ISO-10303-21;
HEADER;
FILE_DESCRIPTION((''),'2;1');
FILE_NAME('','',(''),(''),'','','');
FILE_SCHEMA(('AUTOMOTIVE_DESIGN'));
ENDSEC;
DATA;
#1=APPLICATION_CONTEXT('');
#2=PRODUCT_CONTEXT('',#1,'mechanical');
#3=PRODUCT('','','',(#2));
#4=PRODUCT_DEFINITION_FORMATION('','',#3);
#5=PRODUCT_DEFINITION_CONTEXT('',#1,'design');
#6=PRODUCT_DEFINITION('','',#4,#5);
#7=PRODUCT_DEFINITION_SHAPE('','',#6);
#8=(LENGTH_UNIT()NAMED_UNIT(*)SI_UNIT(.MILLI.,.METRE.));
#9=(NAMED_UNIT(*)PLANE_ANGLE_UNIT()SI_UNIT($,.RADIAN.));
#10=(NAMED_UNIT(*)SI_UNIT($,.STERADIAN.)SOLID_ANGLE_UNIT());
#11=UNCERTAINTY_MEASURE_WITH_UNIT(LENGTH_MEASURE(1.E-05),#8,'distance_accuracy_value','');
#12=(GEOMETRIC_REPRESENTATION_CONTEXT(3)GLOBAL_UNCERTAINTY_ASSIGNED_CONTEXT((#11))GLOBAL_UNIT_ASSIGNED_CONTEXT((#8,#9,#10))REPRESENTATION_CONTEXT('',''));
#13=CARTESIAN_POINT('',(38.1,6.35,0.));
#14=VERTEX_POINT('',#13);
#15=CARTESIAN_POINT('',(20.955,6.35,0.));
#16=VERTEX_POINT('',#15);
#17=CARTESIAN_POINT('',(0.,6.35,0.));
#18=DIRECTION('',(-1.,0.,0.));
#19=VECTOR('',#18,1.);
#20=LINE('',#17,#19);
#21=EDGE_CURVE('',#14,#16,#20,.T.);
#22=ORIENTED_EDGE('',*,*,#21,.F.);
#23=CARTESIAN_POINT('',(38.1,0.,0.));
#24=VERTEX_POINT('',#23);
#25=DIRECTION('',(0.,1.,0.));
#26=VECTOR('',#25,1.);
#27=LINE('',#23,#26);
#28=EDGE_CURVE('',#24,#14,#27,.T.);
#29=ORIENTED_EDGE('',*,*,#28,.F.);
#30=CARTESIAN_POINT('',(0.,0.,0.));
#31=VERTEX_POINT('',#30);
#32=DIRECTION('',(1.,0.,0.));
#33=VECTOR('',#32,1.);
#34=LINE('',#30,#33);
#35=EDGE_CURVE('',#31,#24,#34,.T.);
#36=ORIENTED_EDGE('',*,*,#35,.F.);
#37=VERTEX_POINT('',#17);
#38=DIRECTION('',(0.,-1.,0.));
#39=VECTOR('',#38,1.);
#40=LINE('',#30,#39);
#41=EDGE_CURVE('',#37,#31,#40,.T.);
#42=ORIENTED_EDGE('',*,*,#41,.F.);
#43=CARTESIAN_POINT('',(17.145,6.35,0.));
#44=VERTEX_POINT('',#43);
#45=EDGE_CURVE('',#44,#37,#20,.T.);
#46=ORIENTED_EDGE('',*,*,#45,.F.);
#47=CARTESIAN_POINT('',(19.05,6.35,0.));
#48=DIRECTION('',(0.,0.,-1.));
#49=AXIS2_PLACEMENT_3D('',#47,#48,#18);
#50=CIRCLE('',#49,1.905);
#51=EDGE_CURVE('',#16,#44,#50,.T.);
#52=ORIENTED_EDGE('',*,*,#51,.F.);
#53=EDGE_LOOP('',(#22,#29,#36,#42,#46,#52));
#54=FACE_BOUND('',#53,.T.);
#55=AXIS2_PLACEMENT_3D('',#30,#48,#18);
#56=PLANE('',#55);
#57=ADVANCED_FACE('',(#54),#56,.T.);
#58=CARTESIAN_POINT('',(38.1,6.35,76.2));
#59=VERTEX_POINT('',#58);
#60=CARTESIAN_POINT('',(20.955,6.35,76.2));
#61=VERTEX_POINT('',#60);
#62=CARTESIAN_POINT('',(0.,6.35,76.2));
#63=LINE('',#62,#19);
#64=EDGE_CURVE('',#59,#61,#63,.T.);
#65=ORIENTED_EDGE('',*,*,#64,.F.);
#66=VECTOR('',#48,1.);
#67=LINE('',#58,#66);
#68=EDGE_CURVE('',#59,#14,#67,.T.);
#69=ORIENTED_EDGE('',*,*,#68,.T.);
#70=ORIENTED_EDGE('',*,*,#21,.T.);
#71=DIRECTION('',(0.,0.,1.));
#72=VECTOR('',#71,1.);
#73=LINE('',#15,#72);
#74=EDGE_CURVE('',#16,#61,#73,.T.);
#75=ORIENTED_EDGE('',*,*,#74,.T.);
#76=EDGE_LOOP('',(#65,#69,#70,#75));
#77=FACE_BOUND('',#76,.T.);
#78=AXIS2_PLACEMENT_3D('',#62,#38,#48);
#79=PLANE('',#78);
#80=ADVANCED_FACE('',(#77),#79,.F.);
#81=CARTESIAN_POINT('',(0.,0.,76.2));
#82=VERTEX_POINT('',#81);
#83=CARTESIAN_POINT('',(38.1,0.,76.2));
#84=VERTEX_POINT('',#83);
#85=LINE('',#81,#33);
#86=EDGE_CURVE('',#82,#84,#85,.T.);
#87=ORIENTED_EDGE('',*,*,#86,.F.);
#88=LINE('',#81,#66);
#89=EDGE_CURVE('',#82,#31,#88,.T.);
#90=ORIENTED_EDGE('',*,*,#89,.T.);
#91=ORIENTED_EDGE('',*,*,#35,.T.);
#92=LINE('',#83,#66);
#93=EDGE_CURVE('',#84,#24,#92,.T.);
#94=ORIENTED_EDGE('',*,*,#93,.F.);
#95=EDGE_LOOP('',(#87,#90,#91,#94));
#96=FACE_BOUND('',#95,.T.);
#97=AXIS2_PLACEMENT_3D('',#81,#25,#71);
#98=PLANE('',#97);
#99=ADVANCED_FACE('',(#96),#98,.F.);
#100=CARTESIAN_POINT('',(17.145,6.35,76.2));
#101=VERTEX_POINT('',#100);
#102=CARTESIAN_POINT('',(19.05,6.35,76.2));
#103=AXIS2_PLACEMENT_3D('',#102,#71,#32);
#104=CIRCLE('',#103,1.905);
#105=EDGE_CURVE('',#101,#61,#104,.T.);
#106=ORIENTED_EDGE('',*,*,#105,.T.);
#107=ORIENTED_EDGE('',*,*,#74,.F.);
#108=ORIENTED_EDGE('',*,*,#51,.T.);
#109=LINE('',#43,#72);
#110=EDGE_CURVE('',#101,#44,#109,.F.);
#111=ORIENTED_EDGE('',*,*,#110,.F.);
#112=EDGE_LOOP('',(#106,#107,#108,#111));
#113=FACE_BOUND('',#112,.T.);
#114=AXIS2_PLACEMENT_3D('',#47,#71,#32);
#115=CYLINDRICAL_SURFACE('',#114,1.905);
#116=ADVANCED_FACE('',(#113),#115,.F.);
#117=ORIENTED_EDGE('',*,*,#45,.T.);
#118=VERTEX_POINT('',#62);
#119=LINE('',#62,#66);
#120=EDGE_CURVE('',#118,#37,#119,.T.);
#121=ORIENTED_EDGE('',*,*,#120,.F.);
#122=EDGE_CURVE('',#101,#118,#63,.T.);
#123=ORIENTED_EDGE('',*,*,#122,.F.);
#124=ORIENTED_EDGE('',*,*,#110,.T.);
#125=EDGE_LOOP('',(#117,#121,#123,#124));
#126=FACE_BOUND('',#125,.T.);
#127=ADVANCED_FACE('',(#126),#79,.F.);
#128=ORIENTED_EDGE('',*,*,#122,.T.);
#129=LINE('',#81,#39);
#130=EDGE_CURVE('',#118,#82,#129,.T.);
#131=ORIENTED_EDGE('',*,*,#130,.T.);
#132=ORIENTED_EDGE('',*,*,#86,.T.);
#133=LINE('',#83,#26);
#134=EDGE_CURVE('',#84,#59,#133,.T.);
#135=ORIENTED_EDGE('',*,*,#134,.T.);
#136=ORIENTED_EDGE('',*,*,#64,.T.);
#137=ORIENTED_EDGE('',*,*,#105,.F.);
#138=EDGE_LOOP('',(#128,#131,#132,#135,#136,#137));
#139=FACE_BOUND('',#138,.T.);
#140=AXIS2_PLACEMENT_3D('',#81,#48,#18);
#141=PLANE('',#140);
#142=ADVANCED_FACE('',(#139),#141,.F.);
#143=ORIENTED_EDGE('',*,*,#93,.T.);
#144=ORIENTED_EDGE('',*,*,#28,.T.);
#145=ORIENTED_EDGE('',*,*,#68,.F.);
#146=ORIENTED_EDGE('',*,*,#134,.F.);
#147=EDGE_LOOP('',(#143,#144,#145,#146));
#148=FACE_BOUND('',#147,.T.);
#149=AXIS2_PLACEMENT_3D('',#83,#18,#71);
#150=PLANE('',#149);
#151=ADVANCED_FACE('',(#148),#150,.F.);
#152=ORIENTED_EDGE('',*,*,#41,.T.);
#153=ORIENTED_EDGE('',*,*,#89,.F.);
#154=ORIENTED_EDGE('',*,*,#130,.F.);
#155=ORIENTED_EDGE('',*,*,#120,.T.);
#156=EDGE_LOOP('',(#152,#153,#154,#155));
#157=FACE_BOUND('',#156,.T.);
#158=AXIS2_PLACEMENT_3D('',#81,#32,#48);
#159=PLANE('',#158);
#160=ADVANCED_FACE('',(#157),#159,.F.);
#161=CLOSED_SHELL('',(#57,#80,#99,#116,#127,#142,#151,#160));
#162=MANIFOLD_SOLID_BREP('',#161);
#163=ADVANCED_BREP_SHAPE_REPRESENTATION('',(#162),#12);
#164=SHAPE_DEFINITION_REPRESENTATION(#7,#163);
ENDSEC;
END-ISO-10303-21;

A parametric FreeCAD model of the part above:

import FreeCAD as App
import Part
import Sketcher

V = App.Vector
Q = App.Units.Quantity


def add_polygon(sketch, points):
    """Adds a closed chain of lines whose ends are joined by coincident constraints."""
    first, n = sketch.GeometryCount, len(points)
    for a, b in zip(points, points[1:] + points[:1]):
        sketch.addGeometry(Part.LineSegment(App.Vector(*a, 0), App.Vector(*b, 0)), False)
    for i in range(n):
        sketch.addConstraint(Sketcher.Constraint("Coincident", first + i, 2, first + (i + 1) % n, 1))

doc = App.newDocument("Part")
body = doc.addObject("PartDesign::Body", "Body")

sketch1 = body.newObject("Sketcher::SketchObject", "Sketch")
sketch1.AttachmentSupport = (doc.getObject("XY_Plane"), [""])
sketch1.MapMode = "FlatFace"
add_polygon(sketch1, [(0, 6), (0, 0), (38, 0), (38, 6)])
sketch1.addConstraint(Sketcher.Constraint("Vertical", 0))
sketch1.addConstraint(Sketcher.Constraint("Horizontal", 1))
sketch1.addConstraint(Sketcher.Constraint("Vertical", 2))
sketch1.addConstraint(Sketcher.Constraint("Horizontal", 3))
sketch1.addConstraint(Sketcher.Constraint("Coincident", 0, 2, -1, 1))
sketch1.addConstraint(Sketcher.Constraint("DistanceX", 1, 1, 1, 2, Q("1.5 in")))
sketch1.addConstraint(Sketcher.Constraint("DistanceY", 0, 2, 0, 1, Q("0.25 in")))
pad1 = body.newObject("PartDesign::Pad", "Pad")
pad1.Profile = sketch1
pad1.Length = Q("3 in")

sketch2 = body.newObject("Sketcher::SketchObject", "Sketch001")
sketch2.AttachmentSupport = (doc.getObject("XY_Plane"), [""])
sketch2.MapMode = "FlatFace"
sketch2.AttachmentOffset = App.Placement(V(0, 0, 3 * 25.4), App.Rotation())
sketch2.addGeometry(Part.Circle(V(19.1, 6.3, 0), V(0, 0, 1), 1.9), False)
sketch2.addConstraint(Sketcher.Constraint("Diameter", 0, Q("0.15 in")))
sketch2.addConstraint(Sketcher.Constraint("DistanceX", -1, 1, 0, 3, Q("0.75 in")))
sketch2.addConstraint(Sketcher.Constraint("DistanceY", -1, 1, 0, 3, Q("0.25 in")))
pocket1 = body.newObject("PartDesign::Pocket", "Pocket")
pocket1.Profile = sketch2
pocket1.Type = "ThroughAll"

doc.recompute()
